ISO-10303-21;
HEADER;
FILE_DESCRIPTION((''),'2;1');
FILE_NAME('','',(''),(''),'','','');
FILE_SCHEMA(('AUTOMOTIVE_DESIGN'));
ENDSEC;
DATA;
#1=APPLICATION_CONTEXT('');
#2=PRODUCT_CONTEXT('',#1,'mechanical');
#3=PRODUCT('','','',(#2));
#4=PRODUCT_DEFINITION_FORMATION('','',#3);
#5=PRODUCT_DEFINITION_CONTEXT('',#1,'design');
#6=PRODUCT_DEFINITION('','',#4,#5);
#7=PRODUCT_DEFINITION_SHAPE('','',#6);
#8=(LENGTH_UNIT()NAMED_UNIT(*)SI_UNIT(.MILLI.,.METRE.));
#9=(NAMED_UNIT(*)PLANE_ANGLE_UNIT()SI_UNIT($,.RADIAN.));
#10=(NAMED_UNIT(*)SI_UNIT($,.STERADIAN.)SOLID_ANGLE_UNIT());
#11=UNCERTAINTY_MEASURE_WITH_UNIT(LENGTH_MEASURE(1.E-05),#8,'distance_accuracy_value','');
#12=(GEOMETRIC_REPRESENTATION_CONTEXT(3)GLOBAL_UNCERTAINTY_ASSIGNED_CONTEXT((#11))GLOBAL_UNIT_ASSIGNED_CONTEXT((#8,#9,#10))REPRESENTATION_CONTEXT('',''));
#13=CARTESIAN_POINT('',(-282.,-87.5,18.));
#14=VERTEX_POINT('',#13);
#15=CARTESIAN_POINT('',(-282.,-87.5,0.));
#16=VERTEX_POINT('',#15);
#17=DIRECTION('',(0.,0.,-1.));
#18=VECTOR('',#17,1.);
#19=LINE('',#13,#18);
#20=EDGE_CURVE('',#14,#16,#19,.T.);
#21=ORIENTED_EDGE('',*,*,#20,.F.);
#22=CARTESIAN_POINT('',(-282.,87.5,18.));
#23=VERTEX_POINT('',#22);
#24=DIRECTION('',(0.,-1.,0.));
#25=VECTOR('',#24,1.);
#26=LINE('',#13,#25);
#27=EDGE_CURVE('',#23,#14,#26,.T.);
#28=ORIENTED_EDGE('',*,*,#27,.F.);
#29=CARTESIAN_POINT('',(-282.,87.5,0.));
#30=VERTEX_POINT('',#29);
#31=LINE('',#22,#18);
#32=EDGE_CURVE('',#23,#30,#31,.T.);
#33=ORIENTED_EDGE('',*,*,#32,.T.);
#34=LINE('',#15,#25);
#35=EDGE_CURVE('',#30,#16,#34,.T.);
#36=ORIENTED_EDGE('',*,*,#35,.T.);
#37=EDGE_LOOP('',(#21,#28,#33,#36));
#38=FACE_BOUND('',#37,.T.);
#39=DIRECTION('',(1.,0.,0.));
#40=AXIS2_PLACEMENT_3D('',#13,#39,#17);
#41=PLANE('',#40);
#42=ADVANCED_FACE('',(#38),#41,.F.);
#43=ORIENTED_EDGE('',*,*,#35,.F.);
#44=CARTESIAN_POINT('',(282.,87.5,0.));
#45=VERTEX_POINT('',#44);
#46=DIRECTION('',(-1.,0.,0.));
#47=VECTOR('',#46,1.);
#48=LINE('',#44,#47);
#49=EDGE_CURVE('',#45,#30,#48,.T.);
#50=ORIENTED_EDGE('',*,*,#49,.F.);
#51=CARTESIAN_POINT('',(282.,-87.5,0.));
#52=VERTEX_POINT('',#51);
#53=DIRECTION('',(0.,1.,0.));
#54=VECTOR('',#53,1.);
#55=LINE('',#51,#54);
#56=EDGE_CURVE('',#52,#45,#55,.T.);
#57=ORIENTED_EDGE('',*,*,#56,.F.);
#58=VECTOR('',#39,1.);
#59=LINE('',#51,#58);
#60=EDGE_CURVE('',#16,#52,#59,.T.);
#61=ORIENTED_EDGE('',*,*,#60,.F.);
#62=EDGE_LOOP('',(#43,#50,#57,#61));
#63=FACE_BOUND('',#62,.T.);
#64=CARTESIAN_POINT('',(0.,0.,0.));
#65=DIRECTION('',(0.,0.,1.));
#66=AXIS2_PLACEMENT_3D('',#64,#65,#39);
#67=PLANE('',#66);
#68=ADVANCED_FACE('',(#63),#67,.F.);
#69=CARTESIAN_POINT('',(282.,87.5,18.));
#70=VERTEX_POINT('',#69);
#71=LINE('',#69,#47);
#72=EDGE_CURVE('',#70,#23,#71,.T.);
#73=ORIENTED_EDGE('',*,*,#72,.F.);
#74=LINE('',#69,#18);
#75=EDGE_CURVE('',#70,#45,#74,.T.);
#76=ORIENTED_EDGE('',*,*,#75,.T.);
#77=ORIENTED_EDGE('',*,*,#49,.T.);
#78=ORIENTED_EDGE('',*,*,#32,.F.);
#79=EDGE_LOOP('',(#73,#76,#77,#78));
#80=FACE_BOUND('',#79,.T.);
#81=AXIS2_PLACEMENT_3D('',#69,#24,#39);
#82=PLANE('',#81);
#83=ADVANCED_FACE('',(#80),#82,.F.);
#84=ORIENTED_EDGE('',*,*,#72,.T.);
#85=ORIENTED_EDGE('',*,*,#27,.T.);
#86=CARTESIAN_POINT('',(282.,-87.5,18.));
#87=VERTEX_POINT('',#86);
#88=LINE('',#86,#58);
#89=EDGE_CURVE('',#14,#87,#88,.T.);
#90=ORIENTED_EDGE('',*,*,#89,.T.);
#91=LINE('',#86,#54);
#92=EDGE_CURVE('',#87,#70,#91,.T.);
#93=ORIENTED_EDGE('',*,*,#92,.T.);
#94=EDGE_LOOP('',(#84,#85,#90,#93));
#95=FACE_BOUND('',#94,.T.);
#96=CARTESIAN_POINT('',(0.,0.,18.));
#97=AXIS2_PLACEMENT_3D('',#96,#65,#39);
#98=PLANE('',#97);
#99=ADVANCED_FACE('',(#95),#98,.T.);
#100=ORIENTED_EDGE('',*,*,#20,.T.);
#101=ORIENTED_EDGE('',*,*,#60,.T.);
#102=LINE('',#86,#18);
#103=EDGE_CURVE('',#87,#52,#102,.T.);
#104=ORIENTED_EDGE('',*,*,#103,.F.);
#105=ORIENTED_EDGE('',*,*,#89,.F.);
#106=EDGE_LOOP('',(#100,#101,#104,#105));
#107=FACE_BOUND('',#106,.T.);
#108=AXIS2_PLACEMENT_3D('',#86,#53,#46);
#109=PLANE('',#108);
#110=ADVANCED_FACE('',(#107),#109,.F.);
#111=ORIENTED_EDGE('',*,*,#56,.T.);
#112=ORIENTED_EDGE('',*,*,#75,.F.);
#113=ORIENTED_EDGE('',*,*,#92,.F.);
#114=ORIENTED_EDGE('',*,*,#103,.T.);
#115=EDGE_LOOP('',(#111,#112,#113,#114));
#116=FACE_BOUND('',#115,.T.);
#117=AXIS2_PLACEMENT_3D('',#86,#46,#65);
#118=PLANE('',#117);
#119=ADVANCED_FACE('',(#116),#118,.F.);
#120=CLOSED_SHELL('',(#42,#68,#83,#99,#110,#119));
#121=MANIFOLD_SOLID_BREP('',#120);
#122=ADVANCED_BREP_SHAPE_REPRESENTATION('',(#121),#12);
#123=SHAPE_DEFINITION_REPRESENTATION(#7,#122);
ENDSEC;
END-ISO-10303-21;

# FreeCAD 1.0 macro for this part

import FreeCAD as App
import Part
import Sketcher
Q = App.Units.Quantity

doc = App.newDocument("Part")
params = doc.addObject("Spreadsheet::Sheet", "Params")
for row, (alias, value) in enumerate([
    ("sketch1_width", "564 mm"),
    ("sketch1_height", "175 mm"),
    ("pad1_length", "18 mm"),
], start=1):
    params.set(f"A{row}", alias)
    params.set(f"B{row}", "=" + value)
    params.setAlias(f"B{row}", alias)

body = doc.addObject("PartDesign::Body", "Body")

# Sketch on XY plane
sketch1 = doc.addObject("Sketcher::SketchObject", "Sketch")
body.addObject(sketch1)
sketch1.AttachmentSupport = (doc.XY_Plane, [""])
sketch1.MapMode = "FlatFace"
sketch1.addGeometry([
    Part.LineSegment(App.Vector(-282, 88, 0), App.Vector(-282, -88, 0)),
    Part.LineSegment(App.Vector(-282, -88, 0), App.Vector(282, -88, 0)),
    Part.LineSegment(App.Vector(282, -88, 0), App.Vector(282, 88, 0)),
    Part.LineSegment(App.Vector(282, 88, 0), App.Vector(-282, 88, 0)),
], False)
sketch1.addConstraint([
    Sketcher.Constraint("Coincident", 0, 2, 1, 1),
    Sketcher.Constraint("Coincident", 1, 2, 2, 1),
    Sketcher.Constraint("Coincident", 2, 2, 3, 1),
    Sketcher.Constraint("Coincident", 3, 2, 0, 1),
    Sketcher.Constraint("Vertical", 0),
    Sketcher.Constraint("Horizontal", 1),
    Sketcher.Constraint("Vertical", 2),
    Sketcher.Constraint("Horizontal", 3),
    Sketcher.Constraint("Symmetric", 0, 2, 2, 2, -1, 1),
    Sketcher.Constraint("DistanceX", 1, 1, 1, 2, Q("564 mm")),
    Sketcher.Constraint("DistanceY", 0, 2, 0, 1, Q("175 mm")),
])
sketch1.setExpression("Constraints[9]", "Params.sketch1_width")
sketch1.setExpression("Constraints[10]", "Params.sketch1_height")
pad1 = doc.addObject("PartDesign::Pad", "Pad")
body.addObject(pad1)
pad1.Profile = sketch1
pad1.setExpression("Length", "Params.pad1_length")

doc.recompute()
